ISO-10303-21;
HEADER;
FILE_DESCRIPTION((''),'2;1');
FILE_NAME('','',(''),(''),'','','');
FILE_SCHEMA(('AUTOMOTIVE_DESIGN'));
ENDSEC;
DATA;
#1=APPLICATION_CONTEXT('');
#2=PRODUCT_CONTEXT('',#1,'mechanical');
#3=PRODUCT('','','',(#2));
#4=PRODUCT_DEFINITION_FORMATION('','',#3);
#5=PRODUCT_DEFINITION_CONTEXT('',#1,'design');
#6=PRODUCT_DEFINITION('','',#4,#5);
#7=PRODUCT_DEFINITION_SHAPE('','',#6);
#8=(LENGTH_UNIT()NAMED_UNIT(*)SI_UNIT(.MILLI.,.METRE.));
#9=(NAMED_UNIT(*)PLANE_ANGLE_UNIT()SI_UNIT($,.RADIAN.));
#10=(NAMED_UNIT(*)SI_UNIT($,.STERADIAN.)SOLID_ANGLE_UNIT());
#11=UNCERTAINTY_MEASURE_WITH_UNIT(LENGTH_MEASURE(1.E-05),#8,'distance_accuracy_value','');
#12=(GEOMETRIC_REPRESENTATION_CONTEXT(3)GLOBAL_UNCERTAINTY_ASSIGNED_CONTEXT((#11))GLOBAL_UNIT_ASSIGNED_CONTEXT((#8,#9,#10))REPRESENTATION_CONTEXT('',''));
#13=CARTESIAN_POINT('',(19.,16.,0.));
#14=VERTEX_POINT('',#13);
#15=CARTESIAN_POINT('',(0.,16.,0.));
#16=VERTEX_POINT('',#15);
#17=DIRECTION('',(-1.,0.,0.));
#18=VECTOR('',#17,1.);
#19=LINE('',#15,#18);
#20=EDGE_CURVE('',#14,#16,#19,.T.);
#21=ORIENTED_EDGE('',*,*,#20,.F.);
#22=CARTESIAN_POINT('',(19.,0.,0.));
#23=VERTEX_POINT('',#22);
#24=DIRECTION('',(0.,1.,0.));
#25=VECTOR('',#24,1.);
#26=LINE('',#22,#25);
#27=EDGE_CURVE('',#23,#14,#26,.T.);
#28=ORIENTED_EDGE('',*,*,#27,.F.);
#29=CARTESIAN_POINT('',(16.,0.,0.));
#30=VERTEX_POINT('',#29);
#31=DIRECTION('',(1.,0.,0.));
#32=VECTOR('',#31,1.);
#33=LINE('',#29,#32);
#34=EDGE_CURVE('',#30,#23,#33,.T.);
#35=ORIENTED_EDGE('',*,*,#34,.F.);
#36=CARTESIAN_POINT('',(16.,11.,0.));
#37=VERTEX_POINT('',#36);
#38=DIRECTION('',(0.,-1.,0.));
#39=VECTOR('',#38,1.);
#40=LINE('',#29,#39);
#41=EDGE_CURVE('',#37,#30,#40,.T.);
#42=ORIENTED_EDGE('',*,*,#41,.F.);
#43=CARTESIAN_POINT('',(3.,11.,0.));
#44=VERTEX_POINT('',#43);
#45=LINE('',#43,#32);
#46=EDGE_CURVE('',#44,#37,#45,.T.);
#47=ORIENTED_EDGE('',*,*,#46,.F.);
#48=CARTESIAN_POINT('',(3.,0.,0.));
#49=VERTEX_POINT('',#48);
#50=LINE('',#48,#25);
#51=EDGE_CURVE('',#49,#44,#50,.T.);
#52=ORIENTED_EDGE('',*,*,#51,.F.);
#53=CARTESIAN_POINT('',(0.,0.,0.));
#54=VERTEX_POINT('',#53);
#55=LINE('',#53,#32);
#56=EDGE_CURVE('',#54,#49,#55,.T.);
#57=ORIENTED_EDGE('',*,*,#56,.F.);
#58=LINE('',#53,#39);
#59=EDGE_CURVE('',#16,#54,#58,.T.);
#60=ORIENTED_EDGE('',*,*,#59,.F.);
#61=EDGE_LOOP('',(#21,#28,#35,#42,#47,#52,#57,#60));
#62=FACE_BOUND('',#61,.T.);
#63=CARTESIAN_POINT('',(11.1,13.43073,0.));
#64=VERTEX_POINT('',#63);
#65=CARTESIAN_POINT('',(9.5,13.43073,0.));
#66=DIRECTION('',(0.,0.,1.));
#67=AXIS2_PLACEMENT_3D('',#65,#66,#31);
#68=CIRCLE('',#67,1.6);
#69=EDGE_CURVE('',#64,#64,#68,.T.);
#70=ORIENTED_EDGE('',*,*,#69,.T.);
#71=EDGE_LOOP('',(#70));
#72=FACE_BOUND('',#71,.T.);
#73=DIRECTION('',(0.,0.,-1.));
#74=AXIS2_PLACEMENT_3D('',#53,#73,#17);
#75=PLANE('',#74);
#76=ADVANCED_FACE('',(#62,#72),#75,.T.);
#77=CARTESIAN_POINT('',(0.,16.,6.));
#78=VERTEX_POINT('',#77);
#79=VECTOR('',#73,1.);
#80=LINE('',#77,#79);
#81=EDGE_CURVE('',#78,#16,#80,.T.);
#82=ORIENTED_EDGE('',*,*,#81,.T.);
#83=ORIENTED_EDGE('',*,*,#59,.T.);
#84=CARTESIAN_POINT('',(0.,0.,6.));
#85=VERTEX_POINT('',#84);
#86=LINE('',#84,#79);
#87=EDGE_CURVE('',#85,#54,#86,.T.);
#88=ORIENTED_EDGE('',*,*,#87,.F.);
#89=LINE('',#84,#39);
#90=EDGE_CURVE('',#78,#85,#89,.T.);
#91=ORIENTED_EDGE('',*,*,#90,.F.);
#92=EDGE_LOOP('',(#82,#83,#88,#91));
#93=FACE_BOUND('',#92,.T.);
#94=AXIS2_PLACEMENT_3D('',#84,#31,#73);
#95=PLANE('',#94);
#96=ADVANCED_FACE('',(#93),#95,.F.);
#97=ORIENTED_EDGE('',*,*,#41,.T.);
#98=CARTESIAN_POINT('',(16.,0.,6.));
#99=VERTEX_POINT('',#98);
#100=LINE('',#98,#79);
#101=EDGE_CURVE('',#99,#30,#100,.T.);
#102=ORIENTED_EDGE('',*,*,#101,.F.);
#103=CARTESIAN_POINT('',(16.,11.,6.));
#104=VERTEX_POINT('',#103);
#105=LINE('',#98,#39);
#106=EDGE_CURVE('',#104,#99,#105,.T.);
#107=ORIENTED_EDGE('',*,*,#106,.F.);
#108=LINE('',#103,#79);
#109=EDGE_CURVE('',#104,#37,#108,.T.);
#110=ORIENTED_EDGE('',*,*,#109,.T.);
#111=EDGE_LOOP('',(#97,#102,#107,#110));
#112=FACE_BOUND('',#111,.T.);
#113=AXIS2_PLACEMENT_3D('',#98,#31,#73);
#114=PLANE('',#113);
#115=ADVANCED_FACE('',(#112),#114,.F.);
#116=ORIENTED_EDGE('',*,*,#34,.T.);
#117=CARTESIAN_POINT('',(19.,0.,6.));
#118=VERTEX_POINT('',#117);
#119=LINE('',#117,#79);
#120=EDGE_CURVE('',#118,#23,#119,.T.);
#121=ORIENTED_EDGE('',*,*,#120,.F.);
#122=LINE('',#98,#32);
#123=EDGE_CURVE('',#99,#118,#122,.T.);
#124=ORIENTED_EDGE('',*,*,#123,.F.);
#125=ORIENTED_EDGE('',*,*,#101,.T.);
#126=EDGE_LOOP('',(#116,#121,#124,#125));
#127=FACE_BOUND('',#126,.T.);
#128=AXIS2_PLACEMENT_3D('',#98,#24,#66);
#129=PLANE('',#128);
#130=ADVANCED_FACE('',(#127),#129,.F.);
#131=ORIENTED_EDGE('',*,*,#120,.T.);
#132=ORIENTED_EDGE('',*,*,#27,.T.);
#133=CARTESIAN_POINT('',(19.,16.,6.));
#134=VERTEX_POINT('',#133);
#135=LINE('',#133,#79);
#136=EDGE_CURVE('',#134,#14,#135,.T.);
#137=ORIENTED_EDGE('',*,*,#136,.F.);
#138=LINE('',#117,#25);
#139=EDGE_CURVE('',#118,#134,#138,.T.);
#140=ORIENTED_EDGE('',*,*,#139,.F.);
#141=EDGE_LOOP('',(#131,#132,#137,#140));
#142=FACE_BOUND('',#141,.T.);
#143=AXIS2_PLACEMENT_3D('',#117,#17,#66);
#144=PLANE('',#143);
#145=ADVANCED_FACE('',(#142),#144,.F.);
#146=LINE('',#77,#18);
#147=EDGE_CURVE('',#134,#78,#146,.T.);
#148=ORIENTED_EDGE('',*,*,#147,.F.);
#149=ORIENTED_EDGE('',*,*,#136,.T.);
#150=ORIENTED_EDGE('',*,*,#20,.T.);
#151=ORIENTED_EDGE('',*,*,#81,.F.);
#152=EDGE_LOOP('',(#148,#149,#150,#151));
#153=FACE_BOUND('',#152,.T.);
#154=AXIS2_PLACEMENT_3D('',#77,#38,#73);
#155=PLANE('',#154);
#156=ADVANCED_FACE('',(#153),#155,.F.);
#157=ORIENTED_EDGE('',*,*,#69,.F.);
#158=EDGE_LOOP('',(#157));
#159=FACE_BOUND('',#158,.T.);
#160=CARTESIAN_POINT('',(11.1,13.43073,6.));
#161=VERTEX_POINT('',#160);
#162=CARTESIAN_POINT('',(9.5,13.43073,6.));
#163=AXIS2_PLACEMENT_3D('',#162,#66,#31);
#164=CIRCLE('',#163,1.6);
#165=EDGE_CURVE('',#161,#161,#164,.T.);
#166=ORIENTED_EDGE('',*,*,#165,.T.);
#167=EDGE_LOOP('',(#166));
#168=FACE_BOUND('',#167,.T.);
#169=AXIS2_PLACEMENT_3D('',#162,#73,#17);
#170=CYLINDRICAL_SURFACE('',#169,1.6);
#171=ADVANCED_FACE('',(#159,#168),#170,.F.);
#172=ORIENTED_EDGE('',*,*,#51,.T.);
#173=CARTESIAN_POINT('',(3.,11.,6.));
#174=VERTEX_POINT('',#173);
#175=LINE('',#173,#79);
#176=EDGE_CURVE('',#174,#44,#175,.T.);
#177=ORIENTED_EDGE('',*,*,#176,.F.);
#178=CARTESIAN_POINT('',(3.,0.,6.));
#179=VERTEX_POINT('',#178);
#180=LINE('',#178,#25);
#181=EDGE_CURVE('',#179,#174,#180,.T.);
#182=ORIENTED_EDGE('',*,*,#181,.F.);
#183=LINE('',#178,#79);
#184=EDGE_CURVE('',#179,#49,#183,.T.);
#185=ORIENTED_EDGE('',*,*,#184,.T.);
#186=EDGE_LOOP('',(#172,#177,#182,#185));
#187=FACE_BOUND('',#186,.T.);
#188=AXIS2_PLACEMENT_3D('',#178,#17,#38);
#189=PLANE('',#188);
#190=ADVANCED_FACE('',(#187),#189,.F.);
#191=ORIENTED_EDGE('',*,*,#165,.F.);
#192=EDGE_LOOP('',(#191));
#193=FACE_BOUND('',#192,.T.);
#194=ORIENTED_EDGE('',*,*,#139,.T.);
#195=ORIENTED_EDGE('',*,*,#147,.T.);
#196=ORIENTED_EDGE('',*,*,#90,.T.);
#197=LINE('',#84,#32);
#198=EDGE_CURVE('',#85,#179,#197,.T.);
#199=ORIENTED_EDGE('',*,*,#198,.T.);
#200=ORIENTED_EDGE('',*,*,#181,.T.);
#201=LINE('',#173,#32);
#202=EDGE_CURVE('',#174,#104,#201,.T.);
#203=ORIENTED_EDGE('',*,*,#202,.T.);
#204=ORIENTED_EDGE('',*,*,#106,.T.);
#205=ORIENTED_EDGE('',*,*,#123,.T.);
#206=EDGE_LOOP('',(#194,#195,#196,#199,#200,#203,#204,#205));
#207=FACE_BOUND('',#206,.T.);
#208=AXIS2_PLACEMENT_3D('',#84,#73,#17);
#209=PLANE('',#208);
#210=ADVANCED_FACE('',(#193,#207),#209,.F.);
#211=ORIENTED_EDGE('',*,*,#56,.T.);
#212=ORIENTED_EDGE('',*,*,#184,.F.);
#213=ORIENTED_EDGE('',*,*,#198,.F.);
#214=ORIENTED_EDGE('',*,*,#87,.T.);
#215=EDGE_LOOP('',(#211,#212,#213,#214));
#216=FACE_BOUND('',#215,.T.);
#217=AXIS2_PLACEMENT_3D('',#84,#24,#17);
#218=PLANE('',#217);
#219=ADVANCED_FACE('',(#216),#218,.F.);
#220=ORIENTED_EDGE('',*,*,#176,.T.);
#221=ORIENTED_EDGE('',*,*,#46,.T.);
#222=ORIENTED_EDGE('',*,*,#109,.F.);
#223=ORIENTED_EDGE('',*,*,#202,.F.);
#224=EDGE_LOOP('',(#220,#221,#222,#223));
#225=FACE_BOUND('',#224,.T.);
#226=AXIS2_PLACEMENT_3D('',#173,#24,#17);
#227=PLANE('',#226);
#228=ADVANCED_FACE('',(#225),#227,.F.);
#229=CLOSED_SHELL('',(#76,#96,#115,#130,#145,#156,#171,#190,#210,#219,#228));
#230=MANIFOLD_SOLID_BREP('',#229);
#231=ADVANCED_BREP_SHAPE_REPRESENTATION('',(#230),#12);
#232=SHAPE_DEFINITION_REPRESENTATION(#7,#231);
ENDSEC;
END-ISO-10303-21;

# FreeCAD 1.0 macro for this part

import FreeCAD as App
import Part
import Sketcher
from FreeCAD import Vector


def add_polygon(sketch, points):
    """Adds a closed chain of lines whose ends are joined by coincident constraints."""
    first, n = sketch.GeometryCount, len(points)
    for a, b in zip(points, points[1:] + points[:1]):
        sketch.addGeometry(Part.LineSegment(App.Vector(*a, 0), App.Vector(*b, 0)), False)
    for i in range(n):
        sketch.addConstraint(Sketcher.Constraint("Coincident", first + i, 2, first + (i + 1) % n, 1))

doc = App.newDocument("Part")
body = doc.addObject("PartDesign::Body", "Body")

sketch1 = body.newObject("Sketcher::SketchObject", "Sketch")
sketch1.AttachmentSupport = (doc.getObject("XY_Plane"), [""])
sketch1.MapMode = "FlatFace"
add_polygon(sketch1, [(0, 0), (3, 0), (3, 11), (16, 11), (16, 0), (19, 0), (19, 16), (0, 16)])
sketch1.addGeometry(Part.Circle(Vector(9.5, 13.43073, 0), Vector(0, 0, 1), 1.6), False)
sketch1.addConstraint([
    Sketcher.Constraint("Horizontal", 0),
    Sketcher.Constraint("Vertical", 1),
    Sketcher.Constraint("Horizontal", 2),
    Sketcher.Constraint("Vertical", 3),
    Sketcher.Constraint("Horizontal", 4),
    Sketcher.Constraint("Vertical", 5),
    Sketcher.Constraint("Horizontal", 6),
    Sketcher.Constraint("Vertical", 7),
    Sketcher.Constraint("Coincident", 7, 2, -1, 1),
    Sketcher.Constraint("PointOnObject", 3, 2, -1),
    Sketcher.Constraint("Equal", 0, 4),
    Sketcher.Constraint("Diameter", 8, 3.2),
    Sketcher.Constraint("DistanceX", 0, 1, 0, 2, 3.0),
    Sketcher.Constraint("DistanceX", 2, 1, 2, 2, 13.0),
    Sketcher.Constraint("DistanceY", 1, 1, 1, 2, 11.0),
    Sketcher.Constraint("DistanceY", 5, 1, 5, 2, 16.0),
    Sketcher.Constraint("DistanceX", -1, 1, 8, 3, 9.5),
    Sketcher.Constraint("DistanceY", -1, 1, 8, 3, 13.43073),
])
pad1 = body.newObject("PartDesign::Pad", "Pad")
pad1.Profile = sketch1
pad1.Length = 6

doc.recompute()
